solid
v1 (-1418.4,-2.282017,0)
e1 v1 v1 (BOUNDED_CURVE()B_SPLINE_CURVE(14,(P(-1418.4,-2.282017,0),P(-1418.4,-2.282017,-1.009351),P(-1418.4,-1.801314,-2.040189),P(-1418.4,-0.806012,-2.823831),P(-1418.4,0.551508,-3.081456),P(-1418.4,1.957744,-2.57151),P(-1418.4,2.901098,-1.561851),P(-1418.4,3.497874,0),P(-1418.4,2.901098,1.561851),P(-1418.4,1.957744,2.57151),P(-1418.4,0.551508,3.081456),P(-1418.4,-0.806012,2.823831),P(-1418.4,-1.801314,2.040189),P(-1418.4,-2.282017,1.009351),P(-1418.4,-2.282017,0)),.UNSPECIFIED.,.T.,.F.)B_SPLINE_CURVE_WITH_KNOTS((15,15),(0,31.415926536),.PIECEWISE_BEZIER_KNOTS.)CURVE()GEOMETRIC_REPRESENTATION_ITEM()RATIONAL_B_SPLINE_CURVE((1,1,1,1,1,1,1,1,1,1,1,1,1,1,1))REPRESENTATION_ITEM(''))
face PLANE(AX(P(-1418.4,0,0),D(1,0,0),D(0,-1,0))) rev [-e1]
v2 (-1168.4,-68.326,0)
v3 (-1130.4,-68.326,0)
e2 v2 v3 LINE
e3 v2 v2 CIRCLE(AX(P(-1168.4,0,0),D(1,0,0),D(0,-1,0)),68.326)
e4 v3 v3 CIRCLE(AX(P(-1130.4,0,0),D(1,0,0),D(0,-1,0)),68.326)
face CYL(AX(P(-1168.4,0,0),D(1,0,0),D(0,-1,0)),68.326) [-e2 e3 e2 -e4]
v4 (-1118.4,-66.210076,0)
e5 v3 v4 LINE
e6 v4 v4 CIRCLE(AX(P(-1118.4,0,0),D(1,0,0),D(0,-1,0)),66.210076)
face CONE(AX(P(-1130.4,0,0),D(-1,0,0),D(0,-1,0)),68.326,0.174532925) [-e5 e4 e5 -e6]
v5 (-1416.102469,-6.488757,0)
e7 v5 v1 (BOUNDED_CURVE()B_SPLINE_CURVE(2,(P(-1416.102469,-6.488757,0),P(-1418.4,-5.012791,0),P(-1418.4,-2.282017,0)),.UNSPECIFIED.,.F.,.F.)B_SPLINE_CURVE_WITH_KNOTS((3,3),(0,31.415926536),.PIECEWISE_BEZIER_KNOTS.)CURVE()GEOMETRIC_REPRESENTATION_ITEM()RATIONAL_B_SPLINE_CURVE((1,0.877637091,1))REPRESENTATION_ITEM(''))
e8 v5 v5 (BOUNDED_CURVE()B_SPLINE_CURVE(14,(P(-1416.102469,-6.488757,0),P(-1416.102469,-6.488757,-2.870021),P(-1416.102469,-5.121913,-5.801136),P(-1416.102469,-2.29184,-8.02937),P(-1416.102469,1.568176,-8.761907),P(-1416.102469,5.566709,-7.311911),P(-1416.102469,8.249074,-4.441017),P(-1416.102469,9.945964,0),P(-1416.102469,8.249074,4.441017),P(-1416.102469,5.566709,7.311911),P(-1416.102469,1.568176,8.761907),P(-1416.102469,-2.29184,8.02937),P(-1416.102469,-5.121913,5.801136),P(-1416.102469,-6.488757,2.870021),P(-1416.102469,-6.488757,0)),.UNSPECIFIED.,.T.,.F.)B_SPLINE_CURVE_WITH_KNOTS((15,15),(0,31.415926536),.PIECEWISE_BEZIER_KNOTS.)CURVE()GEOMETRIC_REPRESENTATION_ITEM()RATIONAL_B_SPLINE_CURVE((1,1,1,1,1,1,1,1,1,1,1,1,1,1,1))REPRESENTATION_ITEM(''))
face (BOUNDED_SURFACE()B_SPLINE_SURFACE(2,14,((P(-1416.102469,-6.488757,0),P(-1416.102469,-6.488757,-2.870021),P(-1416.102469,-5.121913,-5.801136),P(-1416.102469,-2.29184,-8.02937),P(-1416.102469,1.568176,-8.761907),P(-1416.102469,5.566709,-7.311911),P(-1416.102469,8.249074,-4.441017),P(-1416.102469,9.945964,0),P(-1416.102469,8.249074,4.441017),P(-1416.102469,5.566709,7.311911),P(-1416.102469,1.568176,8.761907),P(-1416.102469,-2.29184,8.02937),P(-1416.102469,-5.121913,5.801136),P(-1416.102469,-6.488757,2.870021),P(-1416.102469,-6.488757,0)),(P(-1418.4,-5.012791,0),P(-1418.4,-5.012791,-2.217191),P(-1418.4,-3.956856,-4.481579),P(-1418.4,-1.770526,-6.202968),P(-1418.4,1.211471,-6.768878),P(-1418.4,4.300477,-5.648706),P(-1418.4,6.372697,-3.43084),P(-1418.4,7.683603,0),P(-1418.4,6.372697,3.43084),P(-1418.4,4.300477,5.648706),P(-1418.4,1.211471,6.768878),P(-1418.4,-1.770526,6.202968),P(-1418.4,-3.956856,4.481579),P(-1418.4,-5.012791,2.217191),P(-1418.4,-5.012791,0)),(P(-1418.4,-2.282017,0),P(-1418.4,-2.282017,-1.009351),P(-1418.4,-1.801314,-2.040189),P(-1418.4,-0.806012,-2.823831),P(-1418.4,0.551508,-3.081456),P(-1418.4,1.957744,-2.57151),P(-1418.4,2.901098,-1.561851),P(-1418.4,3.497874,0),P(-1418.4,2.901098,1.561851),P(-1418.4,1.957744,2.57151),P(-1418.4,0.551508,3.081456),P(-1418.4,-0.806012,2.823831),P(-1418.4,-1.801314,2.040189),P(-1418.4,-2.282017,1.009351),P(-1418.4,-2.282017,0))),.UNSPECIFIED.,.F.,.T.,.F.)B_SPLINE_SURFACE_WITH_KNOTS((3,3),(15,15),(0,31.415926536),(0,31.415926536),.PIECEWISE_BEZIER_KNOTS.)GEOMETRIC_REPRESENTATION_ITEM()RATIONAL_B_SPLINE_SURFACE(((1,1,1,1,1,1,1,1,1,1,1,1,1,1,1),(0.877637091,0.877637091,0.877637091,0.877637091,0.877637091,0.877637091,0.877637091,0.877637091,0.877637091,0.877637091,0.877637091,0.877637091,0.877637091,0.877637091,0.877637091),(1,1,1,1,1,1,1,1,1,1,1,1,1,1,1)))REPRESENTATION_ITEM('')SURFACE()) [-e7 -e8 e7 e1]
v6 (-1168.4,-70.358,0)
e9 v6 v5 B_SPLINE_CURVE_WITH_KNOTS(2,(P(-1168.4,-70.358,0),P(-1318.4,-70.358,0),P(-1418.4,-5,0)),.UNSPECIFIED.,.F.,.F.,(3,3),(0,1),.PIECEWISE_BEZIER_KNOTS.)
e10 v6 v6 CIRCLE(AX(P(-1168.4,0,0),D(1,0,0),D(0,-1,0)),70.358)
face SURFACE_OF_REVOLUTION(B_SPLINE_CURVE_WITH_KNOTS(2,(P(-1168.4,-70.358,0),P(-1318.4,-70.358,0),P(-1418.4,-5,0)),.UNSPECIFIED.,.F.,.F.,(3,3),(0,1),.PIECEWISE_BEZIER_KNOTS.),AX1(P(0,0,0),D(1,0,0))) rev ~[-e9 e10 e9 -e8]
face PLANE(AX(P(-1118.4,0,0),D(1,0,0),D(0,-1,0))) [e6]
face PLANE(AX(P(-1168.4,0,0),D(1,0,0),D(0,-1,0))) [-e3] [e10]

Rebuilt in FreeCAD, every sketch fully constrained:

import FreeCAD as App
import Part
import Sketcher

V = App.Vector


def edges_at(feature, points):
    """Names of the edges that pass closest to the given points."""
    edges = feature.Shape.Edges
    near = lambda p: min(range(len(edges)), key=lambda i: edges[i].distToShape(Part.Vertex(*p))[0])
    return sorted({f"Edge{near(p) + 1}" for p in points})

doc = App.newDocument("Part")
params = doc.addObject("Spreadsheet::Sheet", "Params")
for row, (alias, value) in enumerate([
    ("sketch1_width", "50 mm"),
    ("revolution_angle", "360 deg"),
    ("chamfer_size", "12 mm"),
    ("fillet_radius", "5 mm"),
], start=1):
    params.set(f"A{row}", alias)
    params.set(f"B{row}", "=" + value)
    params.setAlias(f"B{row}", alias)

body = doc.addObject("PartDesign::Body", "Body")

# Sketch on XY plane
sketch1 = body.newObject("Sketcher::SketchObject", "Sketch")
sketch1.AttachmentSupport = (doc.getObject("XY_Plane"), [""])
sketch1.MapMode = "FlatFace"
sketch1.addGeometry(Part.LineSegment(V(-1418.4, 0, 0), V(-1418.4, -5, 0)), False)
sketch1.addGeometry(Part.BSplineCurve([V(-1168.4, -70.358, 0), V(-1318.4, -70.358, 0), V(-1418.4, -5, 0)], [3, 3], [0, 1], False, 2, [1, 1, 1], False), False)
sketch1.addGeometry(Part.LineSegment(V(-1168.4, -70.358, 0), V(-1168.4, -68.326, 0)), False)
sketch1.addGeometry(Part.LineSegment(V(-1168.4, -68.326, 0), V(-1118.4, -68.326, 0)), False)
sketch1.addGeometry(Part.LineSegment(V(-1118.4, -68.326, 0), V(-1118.4, 0, 0)), False)
sketch1.addGeometry(Part.LineSegment(V(-1118.4, 0, 0), V(-1418.4, 0, 0)), False)
sketch1.addConstraint(Sketcher.Constraint("Block", 1))
sketch1.addConstraint(Sketcher.Constraint("Coincident", 0, 2, 1, 2))
sketch1.addConstraint(Sketcher.Constraint("Coincident", 1, 1, 2, 1))
sketch1.addConstraint(Sketcher.Constraint("Coincident", 2, 2, 3, 1))
sketch1.addConstraint(Sketcher.Constraint("Coincident", 3, 2, 4, 1))
sketch1.addConstraint(Sketcher.Constraint("Coincident", 4, 2, 5, 1))
sketch1.addConstraint(Sketcher.Constraint("Coincident", 5, 2, 0, 1))
sketch1.addConstraint(Sketcher.Constraint("Vertical", 0))
sketch1.addConstraint(Sketcher.Constraint("Vertical", 2))
sketch1.addConstraint(Sketcher.Constraint("Horizontal", 3))
sketch1.addConstraint(Sketcher.Constraint("Vertical", 4))
sketch1.addConstraint(Sketcher.Constraint("Horizontal", 5))
sketch1.addConstraint(Sketcher.Constraint("PointOnObject", 4, 2, -1))
sketch1.addConstraint(Sketcher.Constraint("DistanceX", 3, 1, 3, 2, 50.0))
sketch1.addConstraint(Sketcher.Constraint("DistanceY", 2, 1, 2, 2, 2.032))
sketch1.setExpression("Constraints[13]", "Params.sketch1_width")
revolution = body.newObject("PartDesign::Revolution", "Revolution")
revolution.Profile = sketch1
revolution.ReferenceAxis = (sketch1, ["H_Axis"])
revolution.setExpression("Angle", "Params.revolution_angle")
doc.recompute()

chamfer = body.newObject("PartDesign::Chamfer", "Chamfer")
chamfer.Base = (revolution, edges_at(revolution, [(-1118.4, 68.326, 0)]))
chamfer.ChamferType = "Distance and Angle"
chamfer.setExpression("Size", "Params.chamfer_size")
chamfer.Angle = 10
doc.recompute()

fillet = body.newObject("PartDesign::Fillet", "Fillet")
fillet.Base = (chamfer, edges_at(chamfer, [(-1418.4, 5, 0)]))
fillet.setExpression("Radius", "Params.fillet_radius")

doc.recompute()
